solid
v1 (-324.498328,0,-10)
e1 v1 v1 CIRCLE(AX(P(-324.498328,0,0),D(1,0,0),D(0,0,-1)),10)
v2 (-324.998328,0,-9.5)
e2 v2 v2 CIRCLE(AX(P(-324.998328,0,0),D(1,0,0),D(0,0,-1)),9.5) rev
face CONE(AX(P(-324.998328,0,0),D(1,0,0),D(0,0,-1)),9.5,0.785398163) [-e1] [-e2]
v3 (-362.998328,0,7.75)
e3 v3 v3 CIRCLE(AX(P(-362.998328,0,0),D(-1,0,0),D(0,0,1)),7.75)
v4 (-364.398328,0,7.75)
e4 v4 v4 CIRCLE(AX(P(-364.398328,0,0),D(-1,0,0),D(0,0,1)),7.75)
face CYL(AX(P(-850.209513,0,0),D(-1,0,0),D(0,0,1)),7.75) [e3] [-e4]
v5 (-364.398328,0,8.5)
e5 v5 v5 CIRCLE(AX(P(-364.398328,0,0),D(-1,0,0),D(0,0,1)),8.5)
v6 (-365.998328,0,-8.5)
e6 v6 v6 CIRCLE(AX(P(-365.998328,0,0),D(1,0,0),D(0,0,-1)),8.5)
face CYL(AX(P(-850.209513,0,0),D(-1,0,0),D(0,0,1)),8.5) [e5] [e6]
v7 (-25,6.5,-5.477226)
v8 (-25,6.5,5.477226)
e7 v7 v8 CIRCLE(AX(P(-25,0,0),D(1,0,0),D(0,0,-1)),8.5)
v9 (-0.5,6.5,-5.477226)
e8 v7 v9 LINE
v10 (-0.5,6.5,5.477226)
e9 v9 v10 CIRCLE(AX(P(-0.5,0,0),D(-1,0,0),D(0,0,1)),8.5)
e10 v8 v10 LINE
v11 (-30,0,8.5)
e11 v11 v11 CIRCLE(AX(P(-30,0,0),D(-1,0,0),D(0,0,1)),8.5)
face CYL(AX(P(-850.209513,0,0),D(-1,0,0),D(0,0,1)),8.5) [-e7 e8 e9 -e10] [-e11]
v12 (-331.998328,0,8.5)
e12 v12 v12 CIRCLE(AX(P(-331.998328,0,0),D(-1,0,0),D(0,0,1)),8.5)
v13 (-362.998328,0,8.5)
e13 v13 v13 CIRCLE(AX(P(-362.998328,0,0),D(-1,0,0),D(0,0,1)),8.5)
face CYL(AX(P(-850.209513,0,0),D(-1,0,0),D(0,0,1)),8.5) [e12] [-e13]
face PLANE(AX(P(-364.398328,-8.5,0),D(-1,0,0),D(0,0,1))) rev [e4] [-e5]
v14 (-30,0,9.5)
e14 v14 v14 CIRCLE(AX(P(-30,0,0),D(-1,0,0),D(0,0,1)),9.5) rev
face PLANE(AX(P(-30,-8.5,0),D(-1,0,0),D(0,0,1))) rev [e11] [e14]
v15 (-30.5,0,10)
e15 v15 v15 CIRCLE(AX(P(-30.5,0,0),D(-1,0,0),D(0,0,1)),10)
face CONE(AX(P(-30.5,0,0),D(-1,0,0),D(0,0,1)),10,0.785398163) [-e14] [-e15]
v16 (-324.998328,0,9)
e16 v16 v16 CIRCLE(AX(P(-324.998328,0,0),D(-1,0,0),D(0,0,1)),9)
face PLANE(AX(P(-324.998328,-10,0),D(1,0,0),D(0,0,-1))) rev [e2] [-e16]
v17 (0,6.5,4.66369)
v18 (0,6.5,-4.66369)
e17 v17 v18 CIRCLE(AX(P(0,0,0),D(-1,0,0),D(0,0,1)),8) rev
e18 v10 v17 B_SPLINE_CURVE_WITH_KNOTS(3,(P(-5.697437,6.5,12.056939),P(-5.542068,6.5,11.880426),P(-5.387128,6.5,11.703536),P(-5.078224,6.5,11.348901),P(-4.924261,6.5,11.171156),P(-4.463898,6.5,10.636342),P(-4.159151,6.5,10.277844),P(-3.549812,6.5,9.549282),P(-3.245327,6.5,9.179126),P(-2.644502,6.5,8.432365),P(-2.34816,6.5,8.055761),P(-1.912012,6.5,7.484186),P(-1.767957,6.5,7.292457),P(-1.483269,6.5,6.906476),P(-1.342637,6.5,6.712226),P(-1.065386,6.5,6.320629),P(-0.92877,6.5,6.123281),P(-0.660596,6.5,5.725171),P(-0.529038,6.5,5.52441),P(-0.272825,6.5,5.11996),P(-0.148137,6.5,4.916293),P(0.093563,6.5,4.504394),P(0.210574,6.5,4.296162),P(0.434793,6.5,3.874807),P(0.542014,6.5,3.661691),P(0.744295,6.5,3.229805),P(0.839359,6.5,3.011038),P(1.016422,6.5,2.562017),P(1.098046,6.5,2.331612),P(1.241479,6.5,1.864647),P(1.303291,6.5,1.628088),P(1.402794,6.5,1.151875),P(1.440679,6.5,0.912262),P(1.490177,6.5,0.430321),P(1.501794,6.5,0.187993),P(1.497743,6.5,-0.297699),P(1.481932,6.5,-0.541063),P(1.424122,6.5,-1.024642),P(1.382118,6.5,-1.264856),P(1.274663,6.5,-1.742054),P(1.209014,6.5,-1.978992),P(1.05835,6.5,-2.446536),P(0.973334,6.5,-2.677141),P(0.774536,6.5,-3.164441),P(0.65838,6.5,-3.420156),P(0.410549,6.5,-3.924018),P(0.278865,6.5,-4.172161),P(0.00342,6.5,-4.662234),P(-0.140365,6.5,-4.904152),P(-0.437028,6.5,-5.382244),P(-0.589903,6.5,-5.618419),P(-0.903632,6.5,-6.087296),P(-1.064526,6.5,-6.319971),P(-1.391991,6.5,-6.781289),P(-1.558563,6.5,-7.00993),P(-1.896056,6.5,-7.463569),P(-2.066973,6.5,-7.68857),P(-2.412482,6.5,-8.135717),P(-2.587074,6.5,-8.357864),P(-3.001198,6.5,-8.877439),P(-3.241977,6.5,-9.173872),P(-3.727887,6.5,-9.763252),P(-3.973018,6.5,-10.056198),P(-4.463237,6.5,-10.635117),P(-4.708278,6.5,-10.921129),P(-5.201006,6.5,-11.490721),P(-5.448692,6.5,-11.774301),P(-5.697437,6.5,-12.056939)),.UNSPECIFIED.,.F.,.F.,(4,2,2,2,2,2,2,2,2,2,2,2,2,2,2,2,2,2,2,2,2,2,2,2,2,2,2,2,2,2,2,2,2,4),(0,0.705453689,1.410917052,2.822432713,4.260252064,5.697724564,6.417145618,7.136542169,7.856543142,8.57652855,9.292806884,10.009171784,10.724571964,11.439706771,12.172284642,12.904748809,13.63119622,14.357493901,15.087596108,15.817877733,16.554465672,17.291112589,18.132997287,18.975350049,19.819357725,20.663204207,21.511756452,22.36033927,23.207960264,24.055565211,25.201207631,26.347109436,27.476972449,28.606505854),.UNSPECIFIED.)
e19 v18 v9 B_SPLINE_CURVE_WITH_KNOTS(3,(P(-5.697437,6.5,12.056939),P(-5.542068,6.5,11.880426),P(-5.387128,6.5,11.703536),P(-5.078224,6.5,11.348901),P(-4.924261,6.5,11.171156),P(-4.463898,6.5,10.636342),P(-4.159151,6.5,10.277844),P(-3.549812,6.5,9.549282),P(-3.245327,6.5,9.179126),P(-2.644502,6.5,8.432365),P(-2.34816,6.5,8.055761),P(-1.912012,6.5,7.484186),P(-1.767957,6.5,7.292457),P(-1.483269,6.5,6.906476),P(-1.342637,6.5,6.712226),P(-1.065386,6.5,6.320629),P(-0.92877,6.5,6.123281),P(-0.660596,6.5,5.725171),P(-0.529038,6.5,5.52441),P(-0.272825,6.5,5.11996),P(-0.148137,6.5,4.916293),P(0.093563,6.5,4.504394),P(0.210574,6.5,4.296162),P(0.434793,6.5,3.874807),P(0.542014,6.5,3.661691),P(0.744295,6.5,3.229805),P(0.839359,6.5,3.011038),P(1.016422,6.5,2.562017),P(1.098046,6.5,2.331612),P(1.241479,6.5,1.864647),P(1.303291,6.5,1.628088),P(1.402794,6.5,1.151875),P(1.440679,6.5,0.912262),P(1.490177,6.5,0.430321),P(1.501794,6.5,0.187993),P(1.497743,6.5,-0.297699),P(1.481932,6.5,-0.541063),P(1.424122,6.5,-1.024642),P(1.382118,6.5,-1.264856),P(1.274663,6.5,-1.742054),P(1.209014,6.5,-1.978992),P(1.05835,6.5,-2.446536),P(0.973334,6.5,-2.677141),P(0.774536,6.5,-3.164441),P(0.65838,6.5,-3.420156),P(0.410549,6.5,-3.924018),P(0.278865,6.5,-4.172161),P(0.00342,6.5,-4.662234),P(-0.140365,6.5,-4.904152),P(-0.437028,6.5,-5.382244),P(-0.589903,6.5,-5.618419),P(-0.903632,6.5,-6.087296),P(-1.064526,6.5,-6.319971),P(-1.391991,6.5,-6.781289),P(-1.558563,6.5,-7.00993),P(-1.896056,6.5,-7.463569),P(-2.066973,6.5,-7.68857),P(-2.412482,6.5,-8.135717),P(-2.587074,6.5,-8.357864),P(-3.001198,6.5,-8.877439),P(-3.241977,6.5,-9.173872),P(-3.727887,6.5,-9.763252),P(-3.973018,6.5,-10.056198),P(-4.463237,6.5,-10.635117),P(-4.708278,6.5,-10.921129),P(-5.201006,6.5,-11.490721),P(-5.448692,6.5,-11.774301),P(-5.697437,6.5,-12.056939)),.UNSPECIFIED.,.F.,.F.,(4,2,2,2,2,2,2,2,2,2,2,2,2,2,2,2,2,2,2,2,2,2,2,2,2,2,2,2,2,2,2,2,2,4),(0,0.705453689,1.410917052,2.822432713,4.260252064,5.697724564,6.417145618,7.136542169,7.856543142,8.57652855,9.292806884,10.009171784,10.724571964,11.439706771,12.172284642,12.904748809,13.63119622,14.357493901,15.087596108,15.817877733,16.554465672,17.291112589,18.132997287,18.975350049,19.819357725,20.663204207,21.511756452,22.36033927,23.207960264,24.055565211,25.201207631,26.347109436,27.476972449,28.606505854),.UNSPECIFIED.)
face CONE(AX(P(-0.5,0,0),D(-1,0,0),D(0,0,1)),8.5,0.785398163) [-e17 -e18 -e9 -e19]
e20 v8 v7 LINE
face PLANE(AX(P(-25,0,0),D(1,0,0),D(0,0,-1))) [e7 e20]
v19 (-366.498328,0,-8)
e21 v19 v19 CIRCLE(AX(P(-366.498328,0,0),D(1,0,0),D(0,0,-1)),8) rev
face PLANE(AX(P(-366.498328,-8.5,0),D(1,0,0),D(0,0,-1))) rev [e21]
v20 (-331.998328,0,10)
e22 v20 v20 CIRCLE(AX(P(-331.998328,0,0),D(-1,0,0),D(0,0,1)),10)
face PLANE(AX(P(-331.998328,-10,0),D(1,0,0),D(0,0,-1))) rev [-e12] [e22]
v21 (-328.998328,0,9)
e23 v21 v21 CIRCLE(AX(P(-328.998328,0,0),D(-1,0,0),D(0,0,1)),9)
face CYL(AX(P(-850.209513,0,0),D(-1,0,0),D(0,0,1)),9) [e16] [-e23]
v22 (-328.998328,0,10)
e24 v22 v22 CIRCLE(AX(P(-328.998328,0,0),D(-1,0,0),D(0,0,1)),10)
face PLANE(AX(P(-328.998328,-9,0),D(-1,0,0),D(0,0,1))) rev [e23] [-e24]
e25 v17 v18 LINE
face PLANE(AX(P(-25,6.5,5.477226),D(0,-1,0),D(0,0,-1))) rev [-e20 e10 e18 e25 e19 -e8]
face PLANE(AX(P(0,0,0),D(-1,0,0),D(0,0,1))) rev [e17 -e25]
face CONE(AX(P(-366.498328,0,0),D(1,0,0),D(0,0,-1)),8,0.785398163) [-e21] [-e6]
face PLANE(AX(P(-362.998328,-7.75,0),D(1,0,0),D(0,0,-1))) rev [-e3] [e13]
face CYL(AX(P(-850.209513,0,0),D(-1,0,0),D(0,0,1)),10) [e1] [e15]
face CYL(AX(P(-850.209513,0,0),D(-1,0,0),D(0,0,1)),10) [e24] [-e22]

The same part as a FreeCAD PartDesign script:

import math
import FreeCAD as App
import Part
import Sketcher

V = App.Vector


def edges_at(feature, points):
    """Names of the edges that pass closest to the given points."""
    edges = feature.Shape.Edges
    near = lambda p: min(range(len(edges)), key=lambda i: edges[i].distToShape(Part.Vertex(*p))[0])
    return sorted({f"Edge{near(p) + 1}" for p in points})


def add_polygon(sketch, points):
    """Adds a closed chain of lines whose ends are joined by coincident constraints."""
    first, n = sketch.GeometryCount, len(points)
    for a, b in zip(points, points[1:] + points[:1]):
        sketch.addGeometry(Part.LineSegment(App.Vector(*a, 0), App.Vector(*b, 0)), False)
    for i in range(n):
        sketch.addConstraint(Sketcher.Constraint("Coincident", first + i, 2, first + (i + 1) % n, 1))

doc = App.newDocument("Part")
body = doc.addObject("PartDesign::Body", "Body")

sketch1 = body.newObject("Sketcher::SketchObject", "Sketch")
sketch1.AttachmentSupport = (doc.getObject("XY_Plane"), [""])
sketch1.MapMode = "FlatFace"
add_polygon(sketch1, [(0, 0), (0, 8.5), (-30, 8.5), (-30, 10), (-325, 10), (-325, 9), (-329, 9), (-329, 10), (-332, 10), (-332, 8.5), (-363, 8.5), (-363, 7.8), (-364.4, 7.8), (-364.4, 8.5), (-366.5, 8.5), (-366.5, 0)])
sketch1.addConstraint([
    Sketcher.Constraint("Vertical", 0),
    Sketcher.Constraint("Horizontal", 1),
    Sketcher.Constraint("Vertical", 2),
    Sketcher.Constraint("Horizontal", 3),
    Sketcher.Constraint("Vertical", 4),
    Sketcher.Constraint("Horizontal", 5),
    Sketcher.Constraint("Vertical", 6),
    Sketcher.Constraint("Horizontal", 7),
    Sketcher.Constraint("Vertical", 8),
    Sketcher.Constraint("Horizontal", 9),
    Sketcher.Constraint("Vertical", 10),
    Sketcher.Constraint("Horizontal", 11),
    Sketcher.Constraint("Vertical", 12),
    Sketcher.Constraint("Horizontal", 13),
    Sketcher.Constraint("Vertical", 14),
    Sketcher.Constraint("Horizontal", 15),
    Sketcher.Constraint("Coincident", 15, 2, -1, 1),
    Sketcher.Constraint("Horizontal", 3, 2, 6, 2),
    Sketcher.Constraint("Horizontal", 1, 2, 8, 2),
    Sketcher.Constraint("Horizontal", 9, 2, 12, 2),
    Sketcher.Constraint("DistanceX", 1, 2, 1, 1, 30.0),
    Sketcher.Constraint("DistanceX", 5, 2, 5, 1, 4.0),
    Sketcher.Constraint("DistanceX", 7, 2, 7, 1, 3.0),
    Sketcher.Constraint("DistanceX", 9, 2, 9, 1, 31.0),
    Sketcher.Constraint("DistanceY", 4, 2, 4, 1, 1.0),
    Sketcher.Constraint("DistanceX", 11, 2, 11, 1, 1.4),
    Sketcher.Constraint("DistanceX", 13, 2, 13, 1, 2.1),
    Sketcher.Constraint("DistanceY", 0, 1, 0, 2, 8.5),
    Sketcher.Constraint("DistanceY", 2, 1, 2, 2, 1.5),
    Sketcher.Constraint("DistanceY", 10, 2, 10, 1, 0.75),
    Sketcher.Constraint("DistanceX", 3, 2, 3, 1, 294.998328),
])
revolution = body.newObject("PartDesign::Revolution", "Revolution")
revolution.Profile = sketch1
revolution.ReferenceAxis = (sketch1, ["H_Axis"])
revolution.Angle = 360
doc.recompute()

chamfer = body.newObject("PartDesign::Chamfer", "Chamfer")
chamfer.Base = (revolution, edges_at(revolution, [
    (-324.998, 0, -10),
    (-30, 0, -10),
    (0, 0, -8.5),
    (-366.498, 0, -8.5),
]))
chamfer.Size = 0.5

sketch2 = body.newObject("Sketcher::SketchObject", "Sketch001")
sketch2.AttachmentSupport = (doc.getObject("YZ_Plane"), [""])
sketch2.MapMode = "FlatFace"
sketch2.AttachmentOffset = App.Placement(V(0, 0, -25), App.Rotation())
sketch2.addGeometry([
    Part.LineSegment(V(6, 5, 0), V(6, -5, 0)),
    Part.ArcOfCircle(Part.Circle(V(0, 0, 0), V(0, 0, 1), 8), math.radians(-40), math.radians(40)),
], False)
sketch2.addConstraint([
    Sketcher.Constraint("Coincident", 0, 1, 1, 2),
    Sketcher.Constraint("Coincident", 1, 1, 0, 2),
    Sketcher.Constraint("Vertical", 0),
    Sketcher.Constraint("Coincident", 1, 3, -1, 1),
    Sketcher.Constraint("Radius", 1, 8.5),
    Sketcher.Constraint("DistanceX", -1, 1, 0, 1, 6.5),
])
pocket1 = body.newObject("PartDesign::Pocket", "Pocket")
pocket1.Profile = sketch2
pocket1.Length = 25
pocket1.Reversed = True

doc.recompute()
